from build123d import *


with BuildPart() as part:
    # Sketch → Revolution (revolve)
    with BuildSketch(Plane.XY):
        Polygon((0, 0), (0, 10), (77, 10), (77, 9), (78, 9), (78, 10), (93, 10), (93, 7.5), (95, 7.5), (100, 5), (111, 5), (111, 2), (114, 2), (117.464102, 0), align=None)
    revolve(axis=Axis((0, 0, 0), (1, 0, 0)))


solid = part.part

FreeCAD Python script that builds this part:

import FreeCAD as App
import Part
import Sketcher
from FreeCAD import Vector
Q = App.Units.Quantity

doc = App.newDocument("Part")
body = doc.addObject("PartDesign::Body", "Body")

# Sketch on XY plane
sketch1 = body.newObject("Sketcher::SketchObject", "Sketch")
sketch1.AttachmentSupport = (doc.getObject("XY_Plane"), [""])
sketch1.MapMode = "FlatFace"
sketch1.addGeometry(Part.LineSegment(Vector(0, 10, 0), Vector(0, 0, 0)), False)
sketch1.addGeometry(Part.LineSegment(Vector(0, 0, 0), Vector(117.464102, 0, 0)), False)
sketch1.addGeometry(Part.LineSegment(Vector(117.464102, 0, 0), Vector(114, 2, 0)), False)
sketch1.addGeometry(Part.LineSegment(Vector(114, 2, 0), Vector(111, 2, 0)), False)
sketch1.addGeometry(Part.LineSegment(Vector(111, 2, 0), Vector(111, 5, 0)), False)
sketch1.addGeometry(Part.LineSegment(Vector(111, 5, 0), Vector(100, 5, 0)), False)
sketch1.addGeometry(Part.LineSegment(Vector(100, 5, 0), Vector(95, 7.5, 0)), False)
sketch1.addGeometry(Part.LineSegment(Vector(95, 7.5, 0), Vector(93, 7.5, 0)), False)
sketch1.addGeometry(Part.LineSegment(Vector(93, 7.5, 0), Vector(93, 10, 0)), False)
sketch1.addGeometry(Part.LineSegment(Vector(93, 10, 0), Vector(78, 10, 0)), False)
sketch1.addGeometry(Part.LineSegment(Vector(78, 10, 0), Vector(78, 9, 0)), False)
sketch1.addGeometry(Part.LineSegment(Vector(78, 9, 0), Vector(77, 9, 0)), False)
sketch1.addGeometry(Part.LineSegment(Vector(77, 9, 0), Vector(77, 10, 0)), False)
sketch1.addGeometry(Part.LineSegment(Vector(77, 10, 0), Vector(0, 10, 0)), False)
sketch1.addConstraint(Sketcher.Constraint("Coincident", 0, 2, 1, 1))
sketch1.addConstraint(Sketcher.Constraint("Coincident", 1, 2, 2, 1))
sketch1.addConstraint(Sketcher.Constraint("Coincident", 2, 2, 3, 1))
sketch1.addConstraint(Sketcher.Constraint("Coincident", 3, 2, 4, 1))
sketch1.addConstraint(Sketcher.Constraint("Coincident", 4, 2, 5, 1))
sketch1.addConstraint(Sketcher.Constraint("Coincident", 5, 2, 6, 1))
sketch1.addConstraint(Sketcher.Constraint("Coincident", 6, 2, 7, 1))
sketch1.addConstraint(Sketcher.Constraint("Coincident", 7, 2, 8, 1))
sketch1.addConstraint(Sketcher.Constraint("Coincident", 8, 2, 9, 1))
sketch1.addConstraint(Sketcher.Constraint("Coincident", 9, 2, 10, 1))
sketch1.addConstraint(Sketcher.Constraint("Coincident", 10, 2, 11, 1))
sketch1.addConstraint(Sketcher.Constraint("Coincident", 11, 2, 12, 1))
sketch1.addConstraint(Sketcher.Constraint("Coincident", 12, 2, 13, 1))
sketch1.addConstraint(Sketcher.Constraint("Coincident", 13, 2, 0, 1))
sketch1.addConstraint(Sketcher.Constraint("Vertical", 0))
sketch1.addConstraint(Sketcher.Constraint("Horizontal", 1))
sketch1.addConstraint(Sketcher.Constraint("Horizontal", 3))
sketch1.addConstraint(Sketcher.Constraint("Vertical", 4))
sketch1.addConstraint(Sketcher.Constraint("Horizontal", 5))
sketch1.addConstraint(Sketcher.Constraint("Horizontal", 7))
sketch1.addConstraint(Sketcher.Constraint("Vertical", 8))
sketch1.addConstraint(Sketcher.Constraint("Horizontal", 9))
sketch1.addConstraint(Sketcher.Constraint("Vertical", 10))
sketch1.addConstraint(Sketcher.Constraint("Horizontal", 11))
sketch1.addConstraint(Sketcher.Constraint("Vertical", 12))
sketch1.addConstraint(Sketcher.Constraint("Horizontal", 13))
sketch1.addConstraint(Sketcher.Constraint("Coincident", 0, 2, -1, 1))
sketch1.addConstraint(Sketcher.Constraint("Horizontal", 9, 2, 12, 2))
sketch1.addConstraint(Sketcher.Constraint("Equal", 3, 4))
sketch1.addConstraint(Sketcher.Constraint("Equal", 11, 10))
sketch1.addConstraint(Sketcher.Constraint("DistanceX", 3, 2, 3, 1, 3.0))
sketch1.addConstraint(Sketcher.Constraint("DistanceX", 5, 2, 5, 1, 11.0))
sketch1.addConstraint(Sketcher.Constraint("DistanceX", 7, 2, 7, 1, 2.0))
sketch1.addConstraint(Sketcher.Constraint("DistanceX", 9, 2, 9, 1, 15.0))
sketch1.addConstraint(Sketcher.Constraint("DistanceX", 11, 2, 11, 1, 1.0))
sketch1.addConstraint(Sketcher.Constraint("DistanceX", 13, 2, 13, 1, 77.0))
sketch1.addConstraint(Sketcher.Constraint("DistanceY", 0, 2, 0, 1, 10.0))
sketch1.addConstraint(Sketcher.Constraint("Angle", 2, Q("150.000003 deg")))
sketch1.addConstraint(Sketcher.Constraint("Distance", 2, 4.0))
sketch1.addConstraint(Sketcher.Constraint("DistanceY", 8, 1, 8, 2, 2.5))
sketch1.addConstraint(Sketcher.Constraint("DistanceX", -1, 1, 2, 2, 114.0))
revolution = body.newObject("PartDesign::Revolution", "Revolution")
revolution.Profile = sketch1
revolution.ReferenceAxis = (sketch1, ["H_Axis"])
revolution.Angle = 360

doc.recompute()
